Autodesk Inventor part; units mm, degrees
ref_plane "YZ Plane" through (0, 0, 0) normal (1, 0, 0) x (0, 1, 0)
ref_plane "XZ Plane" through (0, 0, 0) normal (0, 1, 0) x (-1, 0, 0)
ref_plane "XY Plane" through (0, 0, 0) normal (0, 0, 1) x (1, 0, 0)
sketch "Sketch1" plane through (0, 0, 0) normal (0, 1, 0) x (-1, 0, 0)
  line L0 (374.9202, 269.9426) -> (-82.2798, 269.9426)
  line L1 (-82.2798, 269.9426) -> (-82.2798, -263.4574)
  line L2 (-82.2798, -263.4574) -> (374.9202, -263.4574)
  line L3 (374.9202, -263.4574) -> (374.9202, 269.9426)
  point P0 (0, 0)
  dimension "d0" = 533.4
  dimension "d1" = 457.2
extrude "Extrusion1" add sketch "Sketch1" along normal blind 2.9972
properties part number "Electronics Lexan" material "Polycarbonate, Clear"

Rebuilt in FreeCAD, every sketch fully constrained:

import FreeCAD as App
import Part
import Sketcher
from FreeCAD import Vector
Q = App.Units.Quantity

doc = App.newDocument("Part")
body = doc.addObject("PartDesign::Body", "Body")

# Sketch on XZ plane
sketch1 = body.newObject("Sketcher::SketchObject", "Sketch")
sketch1.AttachmentSupport = (doc.getObject("XZ_Plane"), [""])
sketch1.MapMode = "FlatFace"
sketch1.addGeometry([
    Part.LineSegment(Vector(-374.9202, -263.4574, 0), Vector(-374.9202, 269.9426, 0)),
    Part.LineSegment(Vector(-374.9202, 269.9426, 0), Vector(82.2798, 269.9426, 0)),
    Part.LineSegment(Vector(82.2798, 269.9426, 0), Vector(82.2798, -263.4574, 0)),
    Part.LineSegment(Vector(82.2798, -263.4574, 0), Vector(-374.9202, -263.4574, 0)),
], False)
sketch1.addConstraint([
    Sketcher.Constraint("Coincident", 0, 2, 1, 1),
    Sketcher.Constraint("Coincident", 1, 2, 2, 1),
    Sketcher.Constraint("Coincident", 2, 2, 3, 1),
    Sketcher.Constraint("Coincident", 3, 2, 0, 1),
    Sketcher.Constraint("Vertical", 0),
    Sketcher.Constraint("Horizontal", 1),
    Sketcher.Constraint("Vertical", 2),
    Sketcher.Constraint("Horizontal", 3),
    Sketcher.Constraint("DistanceX", 1, 1, 1, 2, Q("18 in")),
    Sketcher.Constraint("DistanceY", 0, 1, 0, 2, Q("21 in")),
    Sketcher.Constraint("DistanceX", 0, 2, -1, 1, 374.9202),
    Sketcher.Constraint("DistanceY", -1, 1, 0, 2, 269.9426),
])
pad1 = body.newObject("PartDesign::Pad", "Pad")
pad1.Profile = sketch1
pad1.Length = Q("0.118 in")
pad1.Reversed = True

doc.recompute()
